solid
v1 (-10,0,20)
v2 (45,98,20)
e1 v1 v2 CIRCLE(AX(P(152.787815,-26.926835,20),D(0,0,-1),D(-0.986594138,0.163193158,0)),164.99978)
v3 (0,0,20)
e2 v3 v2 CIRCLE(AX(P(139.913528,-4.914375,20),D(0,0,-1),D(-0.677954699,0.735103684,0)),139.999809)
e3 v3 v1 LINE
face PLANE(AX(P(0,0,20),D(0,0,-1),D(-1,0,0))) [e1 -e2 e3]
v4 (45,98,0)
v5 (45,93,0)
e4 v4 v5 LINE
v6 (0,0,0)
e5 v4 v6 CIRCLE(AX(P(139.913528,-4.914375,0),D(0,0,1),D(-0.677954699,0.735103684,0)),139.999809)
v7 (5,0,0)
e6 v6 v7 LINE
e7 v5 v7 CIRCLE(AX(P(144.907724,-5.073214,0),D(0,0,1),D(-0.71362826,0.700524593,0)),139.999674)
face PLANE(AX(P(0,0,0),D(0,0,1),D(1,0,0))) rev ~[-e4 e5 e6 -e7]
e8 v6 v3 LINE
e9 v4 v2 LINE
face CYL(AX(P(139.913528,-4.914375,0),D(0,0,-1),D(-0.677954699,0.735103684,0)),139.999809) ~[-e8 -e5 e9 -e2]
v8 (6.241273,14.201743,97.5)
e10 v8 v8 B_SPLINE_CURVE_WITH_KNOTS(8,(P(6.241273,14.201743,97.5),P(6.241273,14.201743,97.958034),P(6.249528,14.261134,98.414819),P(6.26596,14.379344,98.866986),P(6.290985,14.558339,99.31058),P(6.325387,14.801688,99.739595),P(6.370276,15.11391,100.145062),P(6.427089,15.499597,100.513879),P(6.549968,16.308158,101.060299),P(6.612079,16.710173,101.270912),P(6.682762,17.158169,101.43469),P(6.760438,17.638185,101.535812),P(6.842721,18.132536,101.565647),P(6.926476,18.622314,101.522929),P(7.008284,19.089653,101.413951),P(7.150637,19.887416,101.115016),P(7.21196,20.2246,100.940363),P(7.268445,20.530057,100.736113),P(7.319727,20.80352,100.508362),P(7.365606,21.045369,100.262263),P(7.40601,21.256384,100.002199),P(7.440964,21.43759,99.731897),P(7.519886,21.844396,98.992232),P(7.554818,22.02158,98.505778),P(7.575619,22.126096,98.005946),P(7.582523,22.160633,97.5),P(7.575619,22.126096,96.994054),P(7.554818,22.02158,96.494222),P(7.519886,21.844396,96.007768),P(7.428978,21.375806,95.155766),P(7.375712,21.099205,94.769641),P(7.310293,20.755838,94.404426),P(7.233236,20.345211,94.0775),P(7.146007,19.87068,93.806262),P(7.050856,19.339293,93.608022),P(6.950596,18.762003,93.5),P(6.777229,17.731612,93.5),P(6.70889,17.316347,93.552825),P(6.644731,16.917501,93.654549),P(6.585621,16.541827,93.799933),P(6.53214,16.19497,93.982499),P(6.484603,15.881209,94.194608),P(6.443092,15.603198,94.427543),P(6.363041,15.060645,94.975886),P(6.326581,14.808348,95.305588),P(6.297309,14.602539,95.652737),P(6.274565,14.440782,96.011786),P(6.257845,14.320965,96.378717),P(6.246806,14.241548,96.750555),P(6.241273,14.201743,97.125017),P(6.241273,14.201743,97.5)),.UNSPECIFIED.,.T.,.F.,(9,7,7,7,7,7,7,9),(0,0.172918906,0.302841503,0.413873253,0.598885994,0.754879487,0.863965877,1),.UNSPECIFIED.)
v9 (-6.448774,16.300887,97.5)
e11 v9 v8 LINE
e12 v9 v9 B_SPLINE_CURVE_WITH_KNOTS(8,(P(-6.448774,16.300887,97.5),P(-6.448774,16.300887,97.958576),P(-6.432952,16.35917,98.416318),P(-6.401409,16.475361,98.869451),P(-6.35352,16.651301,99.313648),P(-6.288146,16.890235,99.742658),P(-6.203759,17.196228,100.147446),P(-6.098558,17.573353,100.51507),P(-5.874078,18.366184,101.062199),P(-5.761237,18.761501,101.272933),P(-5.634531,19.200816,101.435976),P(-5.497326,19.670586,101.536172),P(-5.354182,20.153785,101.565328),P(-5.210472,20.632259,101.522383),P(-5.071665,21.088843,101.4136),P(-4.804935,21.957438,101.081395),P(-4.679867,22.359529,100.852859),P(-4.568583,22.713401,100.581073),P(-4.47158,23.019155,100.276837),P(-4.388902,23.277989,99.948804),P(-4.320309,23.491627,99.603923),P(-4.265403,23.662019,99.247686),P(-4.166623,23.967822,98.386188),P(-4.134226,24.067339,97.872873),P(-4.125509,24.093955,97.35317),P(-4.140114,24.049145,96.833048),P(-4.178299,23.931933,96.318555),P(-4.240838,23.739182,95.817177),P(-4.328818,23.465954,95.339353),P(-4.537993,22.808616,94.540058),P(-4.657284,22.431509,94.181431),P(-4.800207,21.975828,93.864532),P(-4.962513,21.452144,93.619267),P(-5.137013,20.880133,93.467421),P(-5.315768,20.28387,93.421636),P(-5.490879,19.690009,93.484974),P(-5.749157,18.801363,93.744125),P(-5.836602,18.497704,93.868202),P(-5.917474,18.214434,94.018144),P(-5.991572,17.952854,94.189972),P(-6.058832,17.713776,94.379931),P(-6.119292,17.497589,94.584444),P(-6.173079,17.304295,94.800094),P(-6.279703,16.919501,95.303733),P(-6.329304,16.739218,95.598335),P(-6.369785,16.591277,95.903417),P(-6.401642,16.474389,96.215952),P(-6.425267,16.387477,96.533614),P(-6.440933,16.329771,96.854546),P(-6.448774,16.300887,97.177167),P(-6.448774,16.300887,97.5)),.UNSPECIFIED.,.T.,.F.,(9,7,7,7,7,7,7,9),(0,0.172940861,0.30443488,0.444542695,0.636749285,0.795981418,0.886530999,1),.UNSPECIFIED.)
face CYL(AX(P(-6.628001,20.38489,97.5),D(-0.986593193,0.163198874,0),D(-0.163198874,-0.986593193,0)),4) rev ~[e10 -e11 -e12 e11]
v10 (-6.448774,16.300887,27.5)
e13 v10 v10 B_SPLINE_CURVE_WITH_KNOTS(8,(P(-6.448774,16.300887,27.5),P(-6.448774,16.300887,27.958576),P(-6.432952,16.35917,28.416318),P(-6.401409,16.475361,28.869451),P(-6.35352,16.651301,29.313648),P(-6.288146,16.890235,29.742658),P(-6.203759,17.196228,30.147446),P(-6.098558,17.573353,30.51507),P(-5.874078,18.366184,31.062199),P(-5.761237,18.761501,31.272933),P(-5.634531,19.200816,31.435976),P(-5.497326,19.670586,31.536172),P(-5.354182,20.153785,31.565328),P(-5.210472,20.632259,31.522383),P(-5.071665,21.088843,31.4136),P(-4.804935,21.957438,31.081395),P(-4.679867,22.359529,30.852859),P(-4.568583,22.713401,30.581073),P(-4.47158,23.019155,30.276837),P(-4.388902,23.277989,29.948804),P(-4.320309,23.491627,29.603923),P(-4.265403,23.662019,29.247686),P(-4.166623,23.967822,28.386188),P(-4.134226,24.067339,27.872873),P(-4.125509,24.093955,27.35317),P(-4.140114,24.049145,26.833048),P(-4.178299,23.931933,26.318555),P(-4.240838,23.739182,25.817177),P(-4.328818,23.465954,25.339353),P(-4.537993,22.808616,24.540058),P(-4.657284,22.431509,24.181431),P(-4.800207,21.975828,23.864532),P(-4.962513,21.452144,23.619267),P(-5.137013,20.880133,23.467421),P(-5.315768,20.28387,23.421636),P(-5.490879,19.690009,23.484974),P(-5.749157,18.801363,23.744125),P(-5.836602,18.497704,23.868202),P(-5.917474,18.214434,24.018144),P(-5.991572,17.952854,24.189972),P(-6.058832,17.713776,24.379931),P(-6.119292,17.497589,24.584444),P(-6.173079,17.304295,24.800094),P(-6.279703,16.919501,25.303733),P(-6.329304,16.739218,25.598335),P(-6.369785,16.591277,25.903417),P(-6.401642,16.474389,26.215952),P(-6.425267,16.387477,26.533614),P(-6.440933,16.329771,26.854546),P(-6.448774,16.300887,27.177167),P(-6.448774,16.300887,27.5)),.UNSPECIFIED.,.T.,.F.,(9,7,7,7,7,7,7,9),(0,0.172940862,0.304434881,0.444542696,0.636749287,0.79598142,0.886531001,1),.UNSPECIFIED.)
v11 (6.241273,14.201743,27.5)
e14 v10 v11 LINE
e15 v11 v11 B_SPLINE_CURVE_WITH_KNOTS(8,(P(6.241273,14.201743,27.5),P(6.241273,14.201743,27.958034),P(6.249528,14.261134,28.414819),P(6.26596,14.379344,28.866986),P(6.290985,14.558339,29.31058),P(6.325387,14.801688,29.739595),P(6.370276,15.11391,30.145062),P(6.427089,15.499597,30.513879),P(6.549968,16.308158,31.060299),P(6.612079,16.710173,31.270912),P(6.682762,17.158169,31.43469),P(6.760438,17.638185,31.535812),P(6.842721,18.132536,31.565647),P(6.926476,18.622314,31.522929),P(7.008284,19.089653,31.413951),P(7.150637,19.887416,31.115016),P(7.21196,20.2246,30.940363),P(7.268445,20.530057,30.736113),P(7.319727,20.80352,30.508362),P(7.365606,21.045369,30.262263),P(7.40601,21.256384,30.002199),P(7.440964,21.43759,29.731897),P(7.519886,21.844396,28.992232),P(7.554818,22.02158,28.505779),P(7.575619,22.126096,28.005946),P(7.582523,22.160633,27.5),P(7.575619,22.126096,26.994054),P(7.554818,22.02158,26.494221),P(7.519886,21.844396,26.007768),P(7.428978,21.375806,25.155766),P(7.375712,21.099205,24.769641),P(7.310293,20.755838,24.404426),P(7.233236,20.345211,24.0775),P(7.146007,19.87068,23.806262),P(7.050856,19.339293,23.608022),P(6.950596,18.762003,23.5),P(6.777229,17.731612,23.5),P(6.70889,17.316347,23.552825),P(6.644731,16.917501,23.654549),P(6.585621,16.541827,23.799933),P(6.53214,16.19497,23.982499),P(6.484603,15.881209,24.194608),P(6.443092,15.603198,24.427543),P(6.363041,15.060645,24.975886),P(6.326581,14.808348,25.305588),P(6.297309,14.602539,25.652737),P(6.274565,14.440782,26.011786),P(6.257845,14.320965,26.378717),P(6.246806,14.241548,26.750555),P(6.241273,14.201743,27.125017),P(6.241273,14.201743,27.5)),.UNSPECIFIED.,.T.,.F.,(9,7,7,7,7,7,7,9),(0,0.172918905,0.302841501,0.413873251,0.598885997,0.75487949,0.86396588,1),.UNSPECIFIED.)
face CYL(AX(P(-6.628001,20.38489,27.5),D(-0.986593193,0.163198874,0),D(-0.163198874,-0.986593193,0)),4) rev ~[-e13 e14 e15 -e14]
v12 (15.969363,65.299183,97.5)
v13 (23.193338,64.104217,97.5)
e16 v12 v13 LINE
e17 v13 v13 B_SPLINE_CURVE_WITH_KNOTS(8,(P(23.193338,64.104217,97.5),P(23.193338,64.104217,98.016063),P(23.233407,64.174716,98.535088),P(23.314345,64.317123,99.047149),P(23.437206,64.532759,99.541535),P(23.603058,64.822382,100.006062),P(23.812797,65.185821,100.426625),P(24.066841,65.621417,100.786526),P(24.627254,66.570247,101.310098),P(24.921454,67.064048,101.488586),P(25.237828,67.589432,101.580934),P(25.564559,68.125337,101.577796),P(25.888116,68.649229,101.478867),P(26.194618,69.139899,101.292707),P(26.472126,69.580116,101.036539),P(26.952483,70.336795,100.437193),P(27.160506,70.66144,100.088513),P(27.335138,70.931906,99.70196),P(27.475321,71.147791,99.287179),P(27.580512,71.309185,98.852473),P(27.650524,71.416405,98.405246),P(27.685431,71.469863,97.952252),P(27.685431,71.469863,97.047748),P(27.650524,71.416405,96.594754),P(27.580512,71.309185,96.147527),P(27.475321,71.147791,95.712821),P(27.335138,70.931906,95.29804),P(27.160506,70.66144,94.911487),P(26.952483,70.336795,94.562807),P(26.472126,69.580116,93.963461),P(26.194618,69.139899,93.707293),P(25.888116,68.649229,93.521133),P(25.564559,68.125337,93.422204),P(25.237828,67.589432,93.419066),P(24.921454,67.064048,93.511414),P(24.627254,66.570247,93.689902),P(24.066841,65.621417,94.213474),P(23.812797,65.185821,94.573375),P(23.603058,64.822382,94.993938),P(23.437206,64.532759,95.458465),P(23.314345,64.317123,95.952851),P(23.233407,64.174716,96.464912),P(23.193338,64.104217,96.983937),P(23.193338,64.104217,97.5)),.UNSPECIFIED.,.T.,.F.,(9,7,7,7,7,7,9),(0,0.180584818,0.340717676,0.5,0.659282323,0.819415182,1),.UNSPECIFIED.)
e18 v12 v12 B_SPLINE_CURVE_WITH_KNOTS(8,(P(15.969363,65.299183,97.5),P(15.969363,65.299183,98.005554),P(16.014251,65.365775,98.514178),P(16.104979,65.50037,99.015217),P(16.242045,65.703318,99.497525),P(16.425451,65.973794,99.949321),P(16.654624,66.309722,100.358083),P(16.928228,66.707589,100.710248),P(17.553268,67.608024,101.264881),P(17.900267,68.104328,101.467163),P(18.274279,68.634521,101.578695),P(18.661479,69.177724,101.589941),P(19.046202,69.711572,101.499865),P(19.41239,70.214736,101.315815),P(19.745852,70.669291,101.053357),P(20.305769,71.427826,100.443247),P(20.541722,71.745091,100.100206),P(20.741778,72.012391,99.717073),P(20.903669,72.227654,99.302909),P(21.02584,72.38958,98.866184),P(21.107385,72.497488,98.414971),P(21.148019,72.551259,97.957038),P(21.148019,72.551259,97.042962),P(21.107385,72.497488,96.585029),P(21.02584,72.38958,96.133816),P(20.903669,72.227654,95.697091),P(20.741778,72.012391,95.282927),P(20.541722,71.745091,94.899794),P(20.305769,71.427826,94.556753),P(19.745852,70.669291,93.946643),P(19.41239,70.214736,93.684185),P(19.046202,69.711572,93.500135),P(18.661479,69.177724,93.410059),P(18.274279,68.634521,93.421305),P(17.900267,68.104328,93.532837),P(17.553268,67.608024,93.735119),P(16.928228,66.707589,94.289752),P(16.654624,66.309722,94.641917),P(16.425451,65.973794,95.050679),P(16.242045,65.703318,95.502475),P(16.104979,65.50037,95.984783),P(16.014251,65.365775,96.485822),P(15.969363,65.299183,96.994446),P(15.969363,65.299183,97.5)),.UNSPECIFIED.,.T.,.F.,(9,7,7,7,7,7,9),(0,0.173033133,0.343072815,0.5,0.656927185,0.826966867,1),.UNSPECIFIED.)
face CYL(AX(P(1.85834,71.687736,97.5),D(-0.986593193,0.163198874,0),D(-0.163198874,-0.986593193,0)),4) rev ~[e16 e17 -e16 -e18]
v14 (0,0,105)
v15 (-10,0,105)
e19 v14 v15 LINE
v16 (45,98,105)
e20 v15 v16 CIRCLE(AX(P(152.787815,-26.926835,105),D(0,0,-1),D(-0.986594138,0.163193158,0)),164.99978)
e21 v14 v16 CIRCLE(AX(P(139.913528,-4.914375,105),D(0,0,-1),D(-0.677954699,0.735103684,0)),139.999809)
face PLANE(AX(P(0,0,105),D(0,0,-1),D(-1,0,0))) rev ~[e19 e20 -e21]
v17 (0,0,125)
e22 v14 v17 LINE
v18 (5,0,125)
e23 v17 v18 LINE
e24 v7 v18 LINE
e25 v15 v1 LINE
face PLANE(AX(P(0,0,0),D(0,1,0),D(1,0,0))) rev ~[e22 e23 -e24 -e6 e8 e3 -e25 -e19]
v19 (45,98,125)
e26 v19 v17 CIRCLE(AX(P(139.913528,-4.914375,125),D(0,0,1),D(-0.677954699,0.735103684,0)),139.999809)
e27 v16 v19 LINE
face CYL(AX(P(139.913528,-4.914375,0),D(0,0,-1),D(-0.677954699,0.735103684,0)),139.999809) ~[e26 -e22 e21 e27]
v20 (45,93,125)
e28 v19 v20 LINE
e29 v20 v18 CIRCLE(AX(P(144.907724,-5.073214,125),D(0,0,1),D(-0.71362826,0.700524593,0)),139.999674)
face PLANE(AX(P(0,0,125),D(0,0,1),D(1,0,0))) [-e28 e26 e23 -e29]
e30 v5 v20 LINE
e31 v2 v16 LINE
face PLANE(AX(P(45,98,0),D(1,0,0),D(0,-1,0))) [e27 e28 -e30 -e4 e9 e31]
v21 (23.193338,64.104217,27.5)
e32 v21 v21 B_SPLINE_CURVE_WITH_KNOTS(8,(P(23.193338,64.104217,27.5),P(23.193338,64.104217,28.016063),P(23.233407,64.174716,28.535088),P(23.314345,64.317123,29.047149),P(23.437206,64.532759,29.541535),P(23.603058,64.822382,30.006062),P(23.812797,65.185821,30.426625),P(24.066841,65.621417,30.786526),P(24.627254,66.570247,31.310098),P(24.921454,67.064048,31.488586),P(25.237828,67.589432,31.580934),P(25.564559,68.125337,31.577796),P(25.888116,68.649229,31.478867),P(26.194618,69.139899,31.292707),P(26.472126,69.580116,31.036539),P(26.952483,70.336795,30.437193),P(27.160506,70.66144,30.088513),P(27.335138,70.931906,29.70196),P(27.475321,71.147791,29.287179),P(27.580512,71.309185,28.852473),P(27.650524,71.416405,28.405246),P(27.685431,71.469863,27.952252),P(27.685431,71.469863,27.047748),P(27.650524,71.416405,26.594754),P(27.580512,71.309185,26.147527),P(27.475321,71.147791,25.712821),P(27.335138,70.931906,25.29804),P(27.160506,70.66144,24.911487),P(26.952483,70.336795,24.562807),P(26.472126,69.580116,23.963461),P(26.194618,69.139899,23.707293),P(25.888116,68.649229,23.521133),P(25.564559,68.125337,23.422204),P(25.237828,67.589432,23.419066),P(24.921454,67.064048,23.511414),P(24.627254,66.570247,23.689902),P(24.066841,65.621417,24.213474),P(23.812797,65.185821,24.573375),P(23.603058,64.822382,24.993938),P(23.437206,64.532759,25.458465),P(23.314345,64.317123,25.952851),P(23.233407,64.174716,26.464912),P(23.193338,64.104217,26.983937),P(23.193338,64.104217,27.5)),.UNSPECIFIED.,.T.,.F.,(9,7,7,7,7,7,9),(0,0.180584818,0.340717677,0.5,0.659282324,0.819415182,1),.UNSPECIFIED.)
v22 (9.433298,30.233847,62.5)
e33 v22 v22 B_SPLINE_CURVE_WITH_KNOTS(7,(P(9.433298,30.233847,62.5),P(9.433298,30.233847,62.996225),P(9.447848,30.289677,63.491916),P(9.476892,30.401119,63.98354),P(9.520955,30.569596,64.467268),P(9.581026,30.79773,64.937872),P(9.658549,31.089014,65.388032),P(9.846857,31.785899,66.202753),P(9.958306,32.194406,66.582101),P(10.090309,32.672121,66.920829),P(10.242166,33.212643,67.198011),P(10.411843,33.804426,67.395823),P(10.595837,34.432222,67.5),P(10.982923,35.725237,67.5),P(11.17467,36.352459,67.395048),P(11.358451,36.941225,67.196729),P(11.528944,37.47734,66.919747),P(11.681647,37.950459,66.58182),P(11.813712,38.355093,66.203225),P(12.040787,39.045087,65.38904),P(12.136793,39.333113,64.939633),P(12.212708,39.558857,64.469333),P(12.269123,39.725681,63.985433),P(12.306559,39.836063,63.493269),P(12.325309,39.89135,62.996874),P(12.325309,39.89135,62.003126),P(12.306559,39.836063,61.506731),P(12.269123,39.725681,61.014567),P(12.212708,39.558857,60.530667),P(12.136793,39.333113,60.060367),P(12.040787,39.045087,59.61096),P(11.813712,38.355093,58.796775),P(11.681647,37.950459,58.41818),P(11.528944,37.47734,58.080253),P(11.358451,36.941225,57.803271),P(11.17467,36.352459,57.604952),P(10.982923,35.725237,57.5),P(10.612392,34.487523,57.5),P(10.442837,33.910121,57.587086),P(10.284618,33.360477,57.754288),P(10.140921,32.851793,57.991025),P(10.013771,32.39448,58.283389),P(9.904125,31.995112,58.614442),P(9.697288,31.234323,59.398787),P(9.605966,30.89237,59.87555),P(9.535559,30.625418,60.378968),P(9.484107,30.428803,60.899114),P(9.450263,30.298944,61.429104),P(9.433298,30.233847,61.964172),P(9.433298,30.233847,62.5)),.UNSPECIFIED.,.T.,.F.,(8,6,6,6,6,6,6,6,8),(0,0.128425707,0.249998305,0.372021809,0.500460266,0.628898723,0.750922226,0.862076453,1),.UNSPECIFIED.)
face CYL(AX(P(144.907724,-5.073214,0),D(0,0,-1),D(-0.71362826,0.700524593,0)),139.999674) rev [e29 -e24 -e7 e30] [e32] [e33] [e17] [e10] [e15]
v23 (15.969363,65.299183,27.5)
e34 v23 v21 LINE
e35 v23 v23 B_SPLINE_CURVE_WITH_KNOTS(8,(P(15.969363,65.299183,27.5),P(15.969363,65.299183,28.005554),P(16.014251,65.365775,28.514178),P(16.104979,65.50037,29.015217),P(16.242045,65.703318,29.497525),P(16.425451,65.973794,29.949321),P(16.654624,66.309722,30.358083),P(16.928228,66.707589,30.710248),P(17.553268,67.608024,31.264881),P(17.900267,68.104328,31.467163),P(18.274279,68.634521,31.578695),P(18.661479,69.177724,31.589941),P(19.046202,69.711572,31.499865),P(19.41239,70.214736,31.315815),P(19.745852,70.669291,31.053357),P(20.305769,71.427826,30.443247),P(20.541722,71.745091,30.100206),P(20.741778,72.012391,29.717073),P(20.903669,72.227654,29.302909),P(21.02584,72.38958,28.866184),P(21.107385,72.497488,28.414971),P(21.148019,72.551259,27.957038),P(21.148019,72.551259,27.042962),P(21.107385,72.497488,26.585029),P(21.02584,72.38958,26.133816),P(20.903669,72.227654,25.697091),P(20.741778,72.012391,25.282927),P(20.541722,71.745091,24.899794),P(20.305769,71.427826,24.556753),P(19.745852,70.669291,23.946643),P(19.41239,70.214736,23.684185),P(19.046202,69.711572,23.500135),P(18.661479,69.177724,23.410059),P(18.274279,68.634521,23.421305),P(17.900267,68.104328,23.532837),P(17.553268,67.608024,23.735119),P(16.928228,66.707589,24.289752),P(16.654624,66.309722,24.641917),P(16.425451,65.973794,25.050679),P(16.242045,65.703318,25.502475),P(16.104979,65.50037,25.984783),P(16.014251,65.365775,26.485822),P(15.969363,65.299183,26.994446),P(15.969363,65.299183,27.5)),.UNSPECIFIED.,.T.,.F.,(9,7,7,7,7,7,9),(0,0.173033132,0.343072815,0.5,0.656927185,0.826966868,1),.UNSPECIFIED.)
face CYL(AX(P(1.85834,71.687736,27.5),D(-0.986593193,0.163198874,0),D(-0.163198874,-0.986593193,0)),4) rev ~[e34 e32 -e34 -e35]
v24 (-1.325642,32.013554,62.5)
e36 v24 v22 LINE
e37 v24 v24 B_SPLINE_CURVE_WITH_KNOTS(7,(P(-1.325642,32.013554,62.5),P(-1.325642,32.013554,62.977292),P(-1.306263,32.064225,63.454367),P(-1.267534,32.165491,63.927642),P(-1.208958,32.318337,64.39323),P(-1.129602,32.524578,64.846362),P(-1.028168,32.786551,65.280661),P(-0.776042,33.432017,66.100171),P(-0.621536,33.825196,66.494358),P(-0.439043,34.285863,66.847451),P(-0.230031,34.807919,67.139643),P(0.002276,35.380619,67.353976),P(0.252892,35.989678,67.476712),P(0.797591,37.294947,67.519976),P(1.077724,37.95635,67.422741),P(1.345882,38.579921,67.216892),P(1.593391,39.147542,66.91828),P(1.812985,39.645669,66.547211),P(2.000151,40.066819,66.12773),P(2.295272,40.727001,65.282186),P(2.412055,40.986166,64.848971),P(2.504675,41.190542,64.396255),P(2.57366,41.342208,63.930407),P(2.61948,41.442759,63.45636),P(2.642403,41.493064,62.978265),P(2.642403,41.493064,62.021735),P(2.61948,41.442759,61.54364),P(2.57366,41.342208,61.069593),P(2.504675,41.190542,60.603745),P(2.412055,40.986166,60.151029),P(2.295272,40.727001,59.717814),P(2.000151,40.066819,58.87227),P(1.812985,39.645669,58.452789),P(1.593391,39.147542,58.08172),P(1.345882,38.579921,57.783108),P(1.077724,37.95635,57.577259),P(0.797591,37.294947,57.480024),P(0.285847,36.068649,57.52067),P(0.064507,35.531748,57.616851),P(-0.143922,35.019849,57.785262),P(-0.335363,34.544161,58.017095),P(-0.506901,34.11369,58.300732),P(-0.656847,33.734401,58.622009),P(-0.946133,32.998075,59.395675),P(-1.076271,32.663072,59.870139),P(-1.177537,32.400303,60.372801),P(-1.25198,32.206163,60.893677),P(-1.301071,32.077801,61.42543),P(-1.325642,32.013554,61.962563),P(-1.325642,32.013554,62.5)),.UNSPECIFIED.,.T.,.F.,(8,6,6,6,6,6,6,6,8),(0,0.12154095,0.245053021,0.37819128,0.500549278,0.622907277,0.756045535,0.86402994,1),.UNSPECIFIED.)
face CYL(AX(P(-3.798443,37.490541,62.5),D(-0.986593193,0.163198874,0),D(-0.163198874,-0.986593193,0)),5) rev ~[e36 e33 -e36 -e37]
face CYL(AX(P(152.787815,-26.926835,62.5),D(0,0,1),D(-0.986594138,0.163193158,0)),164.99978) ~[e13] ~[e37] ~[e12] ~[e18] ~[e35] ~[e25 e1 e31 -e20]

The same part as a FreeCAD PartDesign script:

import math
import FreeCAD as App
import Part
import Sketcher

V = App.Vector

doc = App.newDocument("Part")
body = doc.addObject("PartDesign::Body", "Body")

# Sketch on XY plane
sketch1 = doc.addObject("Sketcher::SketchObject", "Sketch")
body.addObject(sketch1)
sketch1.AttachmentSupport = (doc.XY_Plane, [""])
sketch1.MapMode = "FlatFace"
sketch1.addGeometry(Part.LineSegment(V(45, 93, 0), V(45, 98, 0)), False)
sketch1.addGeometry(Part.ArcOfCircle(Part.Circle(V(139.9137, -4.9145, 0), V(0, 0, 1), 140.000017), math.radians(132.684039), math.radians(177.9883)), False)
sketch1.addGeometry(Part.LineSegment(V(0, 0, 0), V(5, 0, 0)), False)
sketch1.addGeometry(Part.ArcOfCircle(Part.Circle(V(144.908, -5.0734, 0), V(0, 0, 1), 140.000001), math.radians(135.530918), math.radians(177.923227)), False)
sketch1.addConstraint(Sketcher.Constraint("Coincident", 0, 2, 1, 1))
sketch1.addConstraint(Sketcher.Constraint("Coincident", 1, 2, 2, 1))
sketch1.addConstraint(Sketcher.Constraint("Coincident", 2, 2, 3, 2))
sketch1.addConstraint(Sketcher.Constraint("Coincident", 3, 1, 0, 1))
sketch1.addConstraint(Sketcher.Constraint("Vertical", 0))
sketch1.addConstraint(Sketcher.Constraint("Horizontal", 2))
sketch1.addConstraint(Sketcher.Constraint("Coincident", 1, 2, -1, 1))
sketch1.addConstraint(Sketcher.Constraint("Equal", 1, 3))
sketch1.addConstraint(Sketcher.Constraint("Equal", 2, 0))
sketch1.addConstraint(Sketcher.Constraint("Radius", 1, 140.0))
sketch1.addConstraint(Sketcher.Constraint("DistanceX", 2, 1, 2, 2, 5.0))
sketch1.addConstraint(Sketcher.Constraint("DistanceX", -1, 1, 0, 2, 45.0))
sketch1.addConstraint(Sketcher.Constraint("DistanceY", -1, 1, 0, 2, 98.0))
pad1 = doc.addObject("PartDesign::Pad", "Pad")
body.addObject(pad1)
pad1.Profile = sketch1
pad1.Length = 125

# Sketch on XY plane
sketch2 = doc.addObject("Sketcher::SketchObject", "Sketch001")
body.addObject(sketch2)
sketch2.AttachmentSupport = (doc.XY_Plane, [""])
sketch2.MapMode = "FlatFace"
sketch2.AttachmentOffset = App.Placement(V(0, 0, 62.5), App.Rotation())
sketch2.addGeometry(Part.ArcOfCircle(Part.Circle(V(139.9137, -4.9145, 0), V(0, 0, 1), 139.999985), math.radians(132.684039), math.radians(177.9883)), False)
sketch2.addGeometry(Part.LineSegment(V(0, 0, 0), V(-10, 0, 0)), False)
sketch2.addGeometry(Part.ArcOfCircle(Part.Circle(V(152.788, -26.9269, 0), V(0, 0, 1), 164.999972), math.radians(130.787906), math.radians(170.607701)), False)
sketch2.addConstraint(Sketcher.Constraint("Coincident", 0, 2, 1, 1))
sketch2.addConstraint(Sketcher.Constraint("Coincident", 1, 2, 2, 2))
sketch2.addConstraint(Sketcher.Constraint("Coincident", 2, 1, 0, 1))
sketch2.addConstraint(Sketcher.Constraint("Horizontal", 1))
sketch2.addConstraint(Sketcher.Constraint("Coincident", 0, 2, -1, 1))
sketch2.addConstraint(Sketcher.Constraint("Radius", 2, 165.0))
sketch2.addConstraint(Sketcher.Constraint("DistanceX", 1, 2, 1, 1, 10.0))
sketch2.addConstraint(Sketcher.Constraint("Radius", 0, 140.0))
sketch2.addConstraint(Sketcher.Constraint("DistanceX", -1, 1, 2, 1, 45.0))
sketch2.addConstraint(Sketcher.Constraint("DistanceY", -1, 1, 2, 1, 98.0))
pad2 = doc.addObject("PartDesign::Pad", "Pad001")
body.addObject(pad2)
pad2.Profile = sketch2
pad2.Length = 85
pad2.Midplane = True

# Sketch on an angled plane
sketch3 = doc.addObject("Sketcher::SketchObject", "Sketch002")
body.addObject(sketch3)
sketch3.Placement = App.Placement(V(-10, 0, 62.5), App.Rotation(V(-0.163198874, -0.986593193, 0), V(0, 0, 1.000000001), V(-0.986593193, 0.163198874, 0), "ZXY"))
sketch3.addGeometry(Part.Circle(V(-20.6619, -35, 0), V(0, 0, 1), 4), False)
sketch3.addGeometry(Part.Circle(V(-72.6619, -35, 0), V(0, 0, 1), 4), False)
sketch3.addGeometry(Part.Circle(V(-20.6619, 35, 0), V(0, 0, 1), 4), False)
sketch3.addGeometry(Part.Circle(V(-72.6619, 35, 0), V(0, 0, 1), 4), False)
sketch3.addConstraint(Sketcher.Constraint("Equal", 0, 1))
sketch3.addConstraint(Sketcher.Constraint("Equal", 1, 2))
sketch3.addConstraint(Sketcher.Constraint("Equal", 2, 3))
sketch3.addConstraint(Sketcher.Constraint("Symmetric", 0, 3, 2, 3, -1))
sketch3.addConstraint(Sketcher.Constraint("Symmetric", 1, 3, 3, 3, -1))
sketch3.addConstraint(Sketcher.Constraint("Horizontal", 0, 3, 1, 3))
sketch3.addConstraint(Sketcher.Constraint("Diameter", 0, 8.0))
sketch3.addConstraint(Sketcher.Constraint("DistanceX", 1, 3, 0, 3, 52.0))
sketch3.addConstraint(Sketcher.Constraint("DistanceY", 0, 3, 2, 3, 70.0))
sketch3.addConstraint(Sketcher.Constraint("DistanceX", 0, 3, -1, 1, 20.662))
pocket1 = doc.addObject("PartDesign::Pocket", "Pocket")
body.addObject(pocket1)
pocket1.Profile = sketch3
pocket1.Type = "ThroughAll"

# Sketch on an angled plane
sketch4 = doc.addObject("Sketcher::SketchObject", "Sketch003")
body.addObject(sketch4)
sketch4.Placement = App.Placement(V(-10, 0, 62.5), App.Rotation(V(-0.163198874, -0.986593193, 0), V(0, 0, 1.000000001), V(-0.986593193, 0.163198874, 0), "ZXY"))
sketch4.addGeometry(Part.Circle(V(-38, 0, 0), V(0, 0, 1), 5), False)
sketch4.addConstraint(Sketcher.Constraint("PointOnObject", 0, 3, -1))
sketch4.addConstraint(Sketcher.Constraint("Diameter", 0, 10.0))
sketch4.addConstraint(Sketcher.Constraint("DistanceX", 0, 3, -1, 1, 38.0))
pocket2 = doc.addObject("PartDesign::Pocket", "Pocket001")
body.addObject(pocket2)
pocket2.Profile = sketch4
pocket2.Type = "ThroughAll"

doc.recompute()
